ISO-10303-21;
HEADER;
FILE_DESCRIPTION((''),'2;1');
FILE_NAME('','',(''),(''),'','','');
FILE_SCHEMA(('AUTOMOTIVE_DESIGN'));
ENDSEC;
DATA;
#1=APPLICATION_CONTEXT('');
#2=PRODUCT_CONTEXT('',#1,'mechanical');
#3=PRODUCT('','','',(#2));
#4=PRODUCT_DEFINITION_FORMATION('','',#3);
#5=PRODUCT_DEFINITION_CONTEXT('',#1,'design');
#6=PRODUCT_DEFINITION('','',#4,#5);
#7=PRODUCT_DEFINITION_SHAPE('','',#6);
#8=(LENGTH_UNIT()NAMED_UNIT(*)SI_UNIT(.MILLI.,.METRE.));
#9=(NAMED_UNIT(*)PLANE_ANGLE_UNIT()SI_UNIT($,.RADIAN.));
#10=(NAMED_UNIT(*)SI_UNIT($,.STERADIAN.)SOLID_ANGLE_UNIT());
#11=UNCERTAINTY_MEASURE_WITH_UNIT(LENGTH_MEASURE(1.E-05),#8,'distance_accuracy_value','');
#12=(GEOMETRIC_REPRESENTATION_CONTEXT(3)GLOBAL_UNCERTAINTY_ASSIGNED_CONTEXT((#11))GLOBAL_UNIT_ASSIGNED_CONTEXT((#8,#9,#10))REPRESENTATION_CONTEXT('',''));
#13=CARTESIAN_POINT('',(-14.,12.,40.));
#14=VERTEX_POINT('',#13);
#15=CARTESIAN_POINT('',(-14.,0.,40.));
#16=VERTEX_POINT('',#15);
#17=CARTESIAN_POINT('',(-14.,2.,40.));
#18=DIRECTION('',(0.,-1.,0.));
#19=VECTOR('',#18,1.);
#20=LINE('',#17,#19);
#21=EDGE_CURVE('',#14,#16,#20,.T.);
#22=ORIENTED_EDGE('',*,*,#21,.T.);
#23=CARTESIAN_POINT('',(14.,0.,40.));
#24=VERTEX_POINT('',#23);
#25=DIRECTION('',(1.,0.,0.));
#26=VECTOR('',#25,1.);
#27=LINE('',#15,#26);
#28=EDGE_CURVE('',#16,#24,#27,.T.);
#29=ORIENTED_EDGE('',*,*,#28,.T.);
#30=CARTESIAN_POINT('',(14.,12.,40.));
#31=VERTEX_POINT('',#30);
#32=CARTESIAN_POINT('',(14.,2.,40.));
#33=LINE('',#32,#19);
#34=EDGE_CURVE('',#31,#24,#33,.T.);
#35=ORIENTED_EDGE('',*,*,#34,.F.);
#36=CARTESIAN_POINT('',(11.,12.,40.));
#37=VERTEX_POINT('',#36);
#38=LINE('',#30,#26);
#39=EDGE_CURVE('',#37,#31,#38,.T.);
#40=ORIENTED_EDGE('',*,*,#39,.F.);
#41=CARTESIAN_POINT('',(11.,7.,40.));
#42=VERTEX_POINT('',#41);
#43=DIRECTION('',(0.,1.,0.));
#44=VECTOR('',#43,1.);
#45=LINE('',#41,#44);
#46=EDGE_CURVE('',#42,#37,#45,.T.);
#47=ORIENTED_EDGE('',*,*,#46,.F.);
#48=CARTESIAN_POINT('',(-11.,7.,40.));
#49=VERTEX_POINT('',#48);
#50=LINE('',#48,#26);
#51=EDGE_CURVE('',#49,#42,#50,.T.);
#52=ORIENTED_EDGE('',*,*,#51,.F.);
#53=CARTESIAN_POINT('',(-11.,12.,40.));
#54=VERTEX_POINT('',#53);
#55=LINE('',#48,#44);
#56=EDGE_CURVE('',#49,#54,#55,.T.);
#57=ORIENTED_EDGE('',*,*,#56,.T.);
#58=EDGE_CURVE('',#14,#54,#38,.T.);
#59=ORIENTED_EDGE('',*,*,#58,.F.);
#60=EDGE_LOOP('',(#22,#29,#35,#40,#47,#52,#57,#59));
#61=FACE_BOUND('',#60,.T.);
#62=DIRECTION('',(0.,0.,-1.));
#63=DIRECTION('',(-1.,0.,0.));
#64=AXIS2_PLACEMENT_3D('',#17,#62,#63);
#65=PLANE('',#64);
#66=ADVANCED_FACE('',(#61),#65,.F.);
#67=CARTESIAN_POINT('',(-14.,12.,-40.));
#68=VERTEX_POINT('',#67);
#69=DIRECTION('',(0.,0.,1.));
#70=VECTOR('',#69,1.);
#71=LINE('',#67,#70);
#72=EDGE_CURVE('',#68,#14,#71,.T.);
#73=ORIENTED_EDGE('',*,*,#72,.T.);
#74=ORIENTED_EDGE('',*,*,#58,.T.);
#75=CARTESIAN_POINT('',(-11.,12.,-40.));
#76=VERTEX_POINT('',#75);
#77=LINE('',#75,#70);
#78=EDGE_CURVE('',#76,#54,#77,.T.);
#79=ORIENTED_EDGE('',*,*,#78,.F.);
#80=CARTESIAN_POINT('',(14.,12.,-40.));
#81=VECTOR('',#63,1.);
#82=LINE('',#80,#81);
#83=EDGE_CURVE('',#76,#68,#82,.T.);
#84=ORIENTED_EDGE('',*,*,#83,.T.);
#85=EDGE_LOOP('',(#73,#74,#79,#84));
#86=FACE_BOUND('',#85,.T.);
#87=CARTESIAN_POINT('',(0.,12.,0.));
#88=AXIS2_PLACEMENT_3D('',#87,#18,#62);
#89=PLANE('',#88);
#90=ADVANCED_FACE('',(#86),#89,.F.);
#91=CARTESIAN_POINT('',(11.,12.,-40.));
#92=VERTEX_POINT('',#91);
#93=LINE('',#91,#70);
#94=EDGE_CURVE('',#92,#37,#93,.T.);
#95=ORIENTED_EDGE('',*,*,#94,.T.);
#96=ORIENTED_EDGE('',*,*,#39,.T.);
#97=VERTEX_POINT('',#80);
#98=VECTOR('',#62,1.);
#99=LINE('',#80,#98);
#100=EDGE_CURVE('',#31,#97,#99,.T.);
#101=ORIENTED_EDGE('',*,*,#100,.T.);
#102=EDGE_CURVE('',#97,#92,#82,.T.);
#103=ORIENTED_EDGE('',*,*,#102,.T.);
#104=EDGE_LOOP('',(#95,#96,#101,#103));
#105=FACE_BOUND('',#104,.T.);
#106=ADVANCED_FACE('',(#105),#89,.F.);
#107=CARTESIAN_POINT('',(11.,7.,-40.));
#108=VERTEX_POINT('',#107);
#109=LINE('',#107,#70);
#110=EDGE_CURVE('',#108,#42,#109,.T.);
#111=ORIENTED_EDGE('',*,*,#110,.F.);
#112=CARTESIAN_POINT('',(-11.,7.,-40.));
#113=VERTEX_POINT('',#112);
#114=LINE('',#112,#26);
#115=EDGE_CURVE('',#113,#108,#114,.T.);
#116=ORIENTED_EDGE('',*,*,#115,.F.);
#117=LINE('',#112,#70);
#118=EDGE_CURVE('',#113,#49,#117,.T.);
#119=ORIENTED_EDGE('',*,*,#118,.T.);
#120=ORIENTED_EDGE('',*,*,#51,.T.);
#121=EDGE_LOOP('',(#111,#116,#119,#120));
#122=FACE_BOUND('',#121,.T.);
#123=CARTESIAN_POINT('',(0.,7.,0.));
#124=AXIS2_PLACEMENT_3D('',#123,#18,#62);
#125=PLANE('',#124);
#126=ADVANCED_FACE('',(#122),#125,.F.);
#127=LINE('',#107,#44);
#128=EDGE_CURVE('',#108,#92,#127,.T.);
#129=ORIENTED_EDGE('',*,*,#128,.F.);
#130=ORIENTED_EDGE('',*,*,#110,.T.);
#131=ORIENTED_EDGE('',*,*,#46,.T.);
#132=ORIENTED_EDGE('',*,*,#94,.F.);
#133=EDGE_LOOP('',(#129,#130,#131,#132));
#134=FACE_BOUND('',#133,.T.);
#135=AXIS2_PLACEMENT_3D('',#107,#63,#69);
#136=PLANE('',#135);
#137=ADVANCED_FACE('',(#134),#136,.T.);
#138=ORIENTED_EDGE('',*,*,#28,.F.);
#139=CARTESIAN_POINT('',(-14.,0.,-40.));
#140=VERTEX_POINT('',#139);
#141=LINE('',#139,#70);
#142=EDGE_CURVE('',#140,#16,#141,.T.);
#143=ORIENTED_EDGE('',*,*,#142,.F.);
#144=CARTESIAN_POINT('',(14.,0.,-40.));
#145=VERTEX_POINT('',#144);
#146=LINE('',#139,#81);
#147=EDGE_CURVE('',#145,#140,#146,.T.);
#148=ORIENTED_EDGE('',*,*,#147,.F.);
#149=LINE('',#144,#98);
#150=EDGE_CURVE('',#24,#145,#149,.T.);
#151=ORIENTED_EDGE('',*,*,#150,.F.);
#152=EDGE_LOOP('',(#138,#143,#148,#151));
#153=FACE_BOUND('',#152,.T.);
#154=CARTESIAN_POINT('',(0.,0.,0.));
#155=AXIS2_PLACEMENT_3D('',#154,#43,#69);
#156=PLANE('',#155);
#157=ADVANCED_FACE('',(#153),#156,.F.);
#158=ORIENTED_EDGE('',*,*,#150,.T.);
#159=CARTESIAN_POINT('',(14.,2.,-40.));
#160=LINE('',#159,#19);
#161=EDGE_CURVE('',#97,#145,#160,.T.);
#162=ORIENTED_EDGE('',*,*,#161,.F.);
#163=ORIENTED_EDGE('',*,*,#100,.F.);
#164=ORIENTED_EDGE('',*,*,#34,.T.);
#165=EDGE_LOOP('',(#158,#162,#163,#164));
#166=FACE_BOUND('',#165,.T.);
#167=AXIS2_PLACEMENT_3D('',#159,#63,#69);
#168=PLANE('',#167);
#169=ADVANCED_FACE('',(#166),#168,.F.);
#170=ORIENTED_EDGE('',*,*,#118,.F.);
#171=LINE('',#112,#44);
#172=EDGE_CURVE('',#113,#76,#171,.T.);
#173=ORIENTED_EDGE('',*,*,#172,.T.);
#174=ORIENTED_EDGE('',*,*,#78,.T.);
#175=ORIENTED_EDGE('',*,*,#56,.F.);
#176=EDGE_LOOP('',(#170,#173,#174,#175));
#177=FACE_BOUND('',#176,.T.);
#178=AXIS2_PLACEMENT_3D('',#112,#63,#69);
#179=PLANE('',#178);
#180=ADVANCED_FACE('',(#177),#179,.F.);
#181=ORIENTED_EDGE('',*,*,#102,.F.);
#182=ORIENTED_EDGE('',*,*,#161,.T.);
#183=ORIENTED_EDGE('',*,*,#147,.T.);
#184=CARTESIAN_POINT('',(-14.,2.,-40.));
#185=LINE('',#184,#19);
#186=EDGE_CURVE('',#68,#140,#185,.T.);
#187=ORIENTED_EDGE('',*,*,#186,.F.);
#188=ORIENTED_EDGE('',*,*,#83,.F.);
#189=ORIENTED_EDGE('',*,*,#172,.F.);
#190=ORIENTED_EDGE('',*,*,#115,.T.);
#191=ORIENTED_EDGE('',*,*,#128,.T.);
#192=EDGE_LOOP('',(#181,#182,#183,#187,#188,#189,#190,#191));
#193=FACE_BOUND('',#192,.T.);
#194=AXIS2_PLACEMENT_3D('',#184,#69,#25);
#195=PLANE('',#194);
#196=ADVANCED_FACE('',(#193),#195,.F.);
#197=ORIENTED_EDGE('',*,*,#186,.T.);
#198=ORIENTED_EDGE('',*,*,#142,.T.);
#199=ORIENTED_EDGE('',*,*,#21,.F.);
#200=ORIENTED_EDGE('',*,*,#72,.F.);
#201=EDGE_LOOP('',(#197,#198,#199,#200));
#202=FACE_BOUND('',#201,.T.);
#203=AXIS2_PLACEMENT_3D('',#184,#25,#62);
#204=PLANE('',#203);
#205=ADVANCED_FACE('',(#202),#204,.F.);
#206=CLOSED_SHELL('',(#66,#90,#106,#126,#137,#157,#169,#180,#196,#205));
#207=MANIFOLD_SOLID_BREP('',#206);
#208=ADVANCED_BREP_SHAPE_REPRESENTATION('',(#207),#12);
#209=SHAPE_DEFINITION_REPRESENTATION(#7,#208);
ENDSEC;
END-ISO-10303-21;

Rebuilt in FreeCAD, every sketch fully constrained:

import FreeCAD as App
import Part
import Sketcher

doc = App.newDocument("Part")
body = doc.addObject("PartDesign::Body", "Body")

# Sketch on XZ plane
sketch1 = body.newObject("Sketcher::SketchObject", "Sketch")
sketch1.AttachmentSupport = (doc.getObject("XZ_Plane"), [""])
sketch1.MapMode = "FlatFace"
sketch1.addGeometry([
    Part.LineSegment(App.Vector(-14, -40, 0), App.Vector(-14, 40, 0)),
    Part.LineSegment(App.Vector(-14, 40, 0), App.Vector(14, 40, 0)),
    Part.LineSegment(App.Vector(14, 40, 0), App.Vector(14, -40, 0)),
    Part.LineSegment(App.Vector(14, -40, 0), App.Vector(-14, -40, 0)),
], False)
sketch1.addConstraint([
    Sketcher.Constraint("Coincident", 0, 2, 1, 1),
    Sketcher.Constraint("Coincident", 1, 2, 2, 1),
    Sketcher.Constraint("Coincident", 2, 2, 3, 1),
    Sketcher.Constraint("Coincident", 3, 2, 0, 1),
    Sketcher.Constraint("Vertical", 0),
    Sketcher.Constraint("Horizontal", 1),
    Sketcher.Constraint("Vertical", 2),
    Sketcher.Constraint("Horizontal", 3),
    Sketcher.Constraint("Symmetric", 0, 2, 2, 2, -1, 1),
    Sketcher.Constraint("DistanceX", 1, 1, 1, 2, 28.0),
    Sketcher.Constraint("DistanceY", 0, 1, 0, 2, 80.0),
])
pad1 = body.newObject("PartDesign::Pad", "Pad")
pad1.Profile = sketch1
pad1.Length = 2
pad1.Reversed = True

# Sketch on XZ plane
sketch2 = body.newObject("Sketcher::SketchObject", "Sketch001")
sketch2.AttachmentSupport = (doc.getObject("XZ_Plane"), [""])
sketch2.MapMode = "FlatFace"
sketch2.AttachmentOffset = App.Placement(App.Vector(0, 0, -2), App.Rotation())
sketch2.addGeometry([
    Part.LineSegment(App.Vector(-14, -40, 0), App.Vector(-14, 40, 0)),
    Part.LineSegment(App.Vector(-14, 40, 0), App.Vector(14, 40, 0)),
    Part.LineSegment(App.Vector(14, 40, 0), App.Vector(14, -40, 0)),
    Part.LineSegment(App.Vector(14, -40, 0), App.Vector(-14, -40, 0)),
], False)
sketch2.addConstraint([
    Sketcher.Constraint("Coincident", 0, 2, 1, 1),
    Sketcher.Constraint("Coincident", 1, 2, 2, 1),
    Sketcher.Constraint("Coincident", 2, 2, 3, 1),
    Sketcher.Constraint("Coincident", 3, 2, 0, 1),
    Sketcher.Constraint("Vertical", 0),
    Sketcher.Constraint("Horizontal", 1),
    Sketcher.Constraint("Vertical", 2),
    Sketcher.Constraint("Horizontal", 3),
    Sketcher.Constraint("Symmetric", 0, 2, 2, 2, -1, 1),
    Sketcher.Constraint("DistanceX", 1, 1, 1, 2, 28.0),
    Sketcher.Constraint("DistanceY", 0, 1, 0, 2, 80.0),
])
pad2 = body.newObject("PartDesign::Pad", "Pad001")
pad2.Profile = sketch2
pad2.Length = 10
pad2.Reversed = True

# Sketch on XZ plane
sketch3 = body.newObject("Sketcher::SketchObject", "Sketch002")
sketch3.AttachmentSupport = (doc.getObject("XZ_Plane"), [""])
sketch3.MapMode = "FlatFace"
sketch3.AttachmentOffset = App.Placement(App.Vector(0, 0, -12), App.Rotation())
sketch3.addGeometry([
    Part.LineSegment(App.Vector(-11, -40, 0), App.Vector(-11, 40, 0)),
    Part.LineSegment(App.Vector(-11, 40, 0), App.Vector(11, 40, 0)),
    Part.LineSegment(App.Vector(11, 40, 0), App.Vector(11, -40, 0)),
    Part.LineSegment(App.Vector(11, -40, 0), App.Vector(-11, -40, 0)),
], False)
sketch3.addConstraint([
    Sketcher.Constraint("Coincident", 0, 2, 1, 1),
    Sketcher.Constraint("Coincident", 1, 2, 2, 1),
    Sketcher.Constraint("Coincident", 2, 2, 3, 1),
    Sketcher.Constraint("Coincident", 3, 2, 0, 1),
    Sketcher.Constraint("Vertical", 0),
    Sketcher.Constraint("Horizontal", 1),
    Sketcher.Constraint("Vertical", 2),
    Sketcher.Constraint("Horizontal", 3),
    Sketcher.Constraint("Symmetric", 0, 2, 2, 2, -1, 1),
    Sketcher.Constraint("DistanceX", 1, 1, 1, 2, 22.0),
    Sketcher.Constraint("DistanceY", 0, 1, 0, 2, 80.0),
])
pocket1 = body.newObject("PartDesign::Pocket", "Pocket")
pocket1.Profile = sketch3
pocket1.Length = 5
pocket1.Reversed = True

doc.recompute()
